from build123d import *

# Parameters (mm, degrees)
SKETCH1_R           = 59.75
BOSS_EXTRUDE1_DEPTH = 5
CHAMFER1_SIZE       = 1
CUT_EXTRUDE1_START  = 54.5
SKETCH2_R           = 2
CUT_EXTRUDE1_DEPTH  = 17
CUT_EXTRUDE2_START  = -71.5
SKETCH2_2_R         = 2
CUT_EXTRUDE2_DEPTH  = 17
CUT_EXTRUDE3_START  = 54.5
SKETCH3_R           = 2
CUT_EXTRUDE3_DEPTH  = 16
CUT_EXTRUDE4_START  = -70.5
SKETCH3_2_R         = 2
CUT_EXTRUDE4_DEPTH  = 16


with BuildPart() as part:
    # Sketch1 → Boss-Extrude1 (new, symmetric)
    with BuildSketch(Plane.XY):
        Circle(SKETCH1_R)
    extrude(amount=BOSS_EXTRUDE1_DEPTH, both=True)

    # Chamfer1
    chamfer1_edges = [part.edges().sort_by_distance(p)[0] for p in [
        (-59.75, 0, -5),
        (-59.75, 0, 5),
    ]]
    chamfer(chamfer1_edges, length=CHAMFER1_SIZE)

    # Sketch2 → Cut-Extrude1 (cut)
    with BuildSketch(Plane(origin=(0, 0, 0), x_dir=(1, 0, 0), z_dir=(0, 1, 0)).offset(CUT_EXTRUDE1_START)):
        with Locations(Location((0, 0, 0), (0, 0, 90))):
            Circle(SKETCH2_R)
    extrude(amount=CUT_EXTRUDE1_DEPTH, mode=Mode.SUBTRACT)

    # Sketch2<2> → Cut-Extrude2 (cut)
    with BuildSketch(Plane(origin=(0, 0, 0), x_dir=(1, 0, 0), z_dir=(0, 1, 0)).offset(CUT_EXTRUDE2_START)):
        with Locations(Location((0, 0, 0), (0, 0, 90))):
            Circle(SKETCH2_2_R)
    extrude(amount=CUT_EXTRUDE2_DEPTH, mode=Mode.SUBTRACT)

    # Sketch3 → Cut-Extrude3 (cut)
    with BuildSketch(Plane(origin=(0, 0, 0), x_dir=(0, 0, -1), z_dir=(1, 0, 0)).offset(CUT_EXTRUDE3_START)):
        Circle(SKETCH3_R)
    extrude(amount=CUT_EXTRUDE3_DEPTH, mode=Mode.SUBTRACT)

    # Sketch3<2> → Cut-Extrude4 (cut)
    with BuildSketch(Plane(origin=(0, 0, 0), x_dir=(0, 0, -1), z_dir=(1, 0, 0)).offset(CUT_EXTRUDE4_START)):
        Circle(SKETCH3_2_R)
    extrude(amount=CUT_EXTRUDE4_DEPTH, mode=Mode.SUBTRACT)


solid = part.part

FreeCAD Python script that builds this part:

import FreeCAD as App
import Part
import Sketcher

V = App.Vector


def edges_at(feature, points):
    """Names of the edges that pass closest to the given points."""
    edges = feature.Shape.Edges
    near = lambda p: min(range(len(edges)), key=lambda i: edges[i].distToShape(Part.Vertex(*p))[0])
    return sorted({f"Edge{near(p) + 1}" for p in points})

doc = App.newDocument("Part")
body = doc.addObject("PartDesign::Body", "Body")

# Sketch on XY plane
sketch1 = doc.addObject("Sketcher::SketchObject", "Sketch")
body.addObject(sketch1)
sketch1.AttachmentSupport = (doc.XY_Plane, [""])
sketch1.MapMode = "FlatFace"
sketch1.addGeometry(Part.Circle(V(0, 0, 0), V(0, 0, 1), 60), False)
sketch1.addConstraint([
    Sketcher.Constraint("Coincident", 0, 3, -1, 1),
    Sketcher.Constraint("Diameter", 0, 119.5),
])
pad1 = doc.addObject("PartDesign::Pad", "Pad")
body.addObject(pad1)
pad1.Profile = sketch1
pad1.Length = 10
pad1.Midplane = True
doc.recompute()

chamfer = doc.addObject("PartDesign::Chamfer", "Chamfer")
body.addObject(chamfer)
chamfer.Base = (pad1, edges_at(pad1, [(-59.75, 0, -5), (-59.75, 0, 5)]))
chamfer.Size = 1

# Sketch on XZ plane
sketch2 = doc.addObject("Sketcher::SketchObject", "Sketch001")
body.addObject(sketch2)
sketch2.AttachmentSupport = (doc.XZ_Plane, [""])
sketch2.MapMode = "FlatFace"
sketch2.AttachmentOffset = App.Placement(V(0, 0, -54.5), App.Rotation())
sketch2.addGeometry(Part.Circle(V(0, 0, 0), V(0, 0, 1), 2), False)
sketch2.addConstraint([
    Sketcher.Constraint("Coincident", 0, 3, -1, 1),
    Sketcher.Constraint("Diameter", 0, 4.0),
])
pocket1 = doc.addObject("PartDesign::Pocket", "Pocket")
body.addObject(pocket1)
pocket1.Profile = sketch2
pocket1.Length = 17

# Sketch on XZ plane
sketch3 = doc.addObject("Sketcher::SketchObject", "Sketch002")
body.addObject(sketch3)
sketch3.AttachmentSupport = (doc.XZ_Plane, [""])
sketch3.MapMode = "FlatFace"
sketch3.AttachmentOffset = App.Placement(V(0, 0, 71.5), App.Rotation())
sketch3.addGeometry(Part.Circle(V(0, 0, 0), V(0, 0, 1), 2), False)
sketch3.addConstraint([
    Sketcher.Constraint("Coincident", 0, 3, -1, 1),
    Sketcher.Constraint("Diameter", 0, 4.0),
])
pocket2 = doc.addObject("PartDesign::Pocket", "Pocket001")
body.addObject(pocket2)
pocket2.Profile = sketch3
pocket2.Length = 17

# Sketch on YZ plane
sketch4 = doc.addObject("Sketcher::SketchObject", "Sketch003")
body.addObject(sketch4)
sketch4.AttachmentSupport = (doc.YZ_Plane, [""])
sketch4.MapMode = "FlatFace"
sketch4.AttachmentOffset = App.Placement(V(0, 0, 54.5), App.Rotation())
sketch4.addGeometry(Part.Circle(V(0, 0, 0), V(0, 0, 1), 2), False)
sketch4.addConstraint([
    Sketcher.Constraint("Coincident", 0, 3, -1, 1),
    Sketcher.Constraint("Diameter", 0, 4.0),
])
pocket3 = doc.addObject("PartDesign::Pocket", "Pocket002")
body.addObject(pocket3)
pocket3.Profile = sketch4
pocket3.Length = 16
pocket3.Reversed = True

# Sketch on YZ plane
sketch5 = doc.addObject("Sketcher::SketchObject", "Sketch004")
body.addObject(sketch5)
sketch5.AttachmentSupport = (doc.YZ_Plane, [""])
sketch5.MapMode = "FlatFace"
sketch5.AttachmentOffset = App.Placement(V(0, 0, -70.5), App.Rotation())
sketch5.addGeometry(Part.Circle(V(0, 0, 0), V(0, 0, 1), 2), False)
sketch5.addConstraint([
    Sketcher.Constraint("Coincident", 0, 3, -1, 1),
    Sketcher.Constraint("Diameter", 0, 4.0),
])
pocket4 = doc.addObject("PartDesign::Pocket", "Pocket003")
body.addObject(pocket4)
pocket4.Profile = sketch5
pocket4.Length = 16
pocket4.Reversed = True

doc.recompute()
